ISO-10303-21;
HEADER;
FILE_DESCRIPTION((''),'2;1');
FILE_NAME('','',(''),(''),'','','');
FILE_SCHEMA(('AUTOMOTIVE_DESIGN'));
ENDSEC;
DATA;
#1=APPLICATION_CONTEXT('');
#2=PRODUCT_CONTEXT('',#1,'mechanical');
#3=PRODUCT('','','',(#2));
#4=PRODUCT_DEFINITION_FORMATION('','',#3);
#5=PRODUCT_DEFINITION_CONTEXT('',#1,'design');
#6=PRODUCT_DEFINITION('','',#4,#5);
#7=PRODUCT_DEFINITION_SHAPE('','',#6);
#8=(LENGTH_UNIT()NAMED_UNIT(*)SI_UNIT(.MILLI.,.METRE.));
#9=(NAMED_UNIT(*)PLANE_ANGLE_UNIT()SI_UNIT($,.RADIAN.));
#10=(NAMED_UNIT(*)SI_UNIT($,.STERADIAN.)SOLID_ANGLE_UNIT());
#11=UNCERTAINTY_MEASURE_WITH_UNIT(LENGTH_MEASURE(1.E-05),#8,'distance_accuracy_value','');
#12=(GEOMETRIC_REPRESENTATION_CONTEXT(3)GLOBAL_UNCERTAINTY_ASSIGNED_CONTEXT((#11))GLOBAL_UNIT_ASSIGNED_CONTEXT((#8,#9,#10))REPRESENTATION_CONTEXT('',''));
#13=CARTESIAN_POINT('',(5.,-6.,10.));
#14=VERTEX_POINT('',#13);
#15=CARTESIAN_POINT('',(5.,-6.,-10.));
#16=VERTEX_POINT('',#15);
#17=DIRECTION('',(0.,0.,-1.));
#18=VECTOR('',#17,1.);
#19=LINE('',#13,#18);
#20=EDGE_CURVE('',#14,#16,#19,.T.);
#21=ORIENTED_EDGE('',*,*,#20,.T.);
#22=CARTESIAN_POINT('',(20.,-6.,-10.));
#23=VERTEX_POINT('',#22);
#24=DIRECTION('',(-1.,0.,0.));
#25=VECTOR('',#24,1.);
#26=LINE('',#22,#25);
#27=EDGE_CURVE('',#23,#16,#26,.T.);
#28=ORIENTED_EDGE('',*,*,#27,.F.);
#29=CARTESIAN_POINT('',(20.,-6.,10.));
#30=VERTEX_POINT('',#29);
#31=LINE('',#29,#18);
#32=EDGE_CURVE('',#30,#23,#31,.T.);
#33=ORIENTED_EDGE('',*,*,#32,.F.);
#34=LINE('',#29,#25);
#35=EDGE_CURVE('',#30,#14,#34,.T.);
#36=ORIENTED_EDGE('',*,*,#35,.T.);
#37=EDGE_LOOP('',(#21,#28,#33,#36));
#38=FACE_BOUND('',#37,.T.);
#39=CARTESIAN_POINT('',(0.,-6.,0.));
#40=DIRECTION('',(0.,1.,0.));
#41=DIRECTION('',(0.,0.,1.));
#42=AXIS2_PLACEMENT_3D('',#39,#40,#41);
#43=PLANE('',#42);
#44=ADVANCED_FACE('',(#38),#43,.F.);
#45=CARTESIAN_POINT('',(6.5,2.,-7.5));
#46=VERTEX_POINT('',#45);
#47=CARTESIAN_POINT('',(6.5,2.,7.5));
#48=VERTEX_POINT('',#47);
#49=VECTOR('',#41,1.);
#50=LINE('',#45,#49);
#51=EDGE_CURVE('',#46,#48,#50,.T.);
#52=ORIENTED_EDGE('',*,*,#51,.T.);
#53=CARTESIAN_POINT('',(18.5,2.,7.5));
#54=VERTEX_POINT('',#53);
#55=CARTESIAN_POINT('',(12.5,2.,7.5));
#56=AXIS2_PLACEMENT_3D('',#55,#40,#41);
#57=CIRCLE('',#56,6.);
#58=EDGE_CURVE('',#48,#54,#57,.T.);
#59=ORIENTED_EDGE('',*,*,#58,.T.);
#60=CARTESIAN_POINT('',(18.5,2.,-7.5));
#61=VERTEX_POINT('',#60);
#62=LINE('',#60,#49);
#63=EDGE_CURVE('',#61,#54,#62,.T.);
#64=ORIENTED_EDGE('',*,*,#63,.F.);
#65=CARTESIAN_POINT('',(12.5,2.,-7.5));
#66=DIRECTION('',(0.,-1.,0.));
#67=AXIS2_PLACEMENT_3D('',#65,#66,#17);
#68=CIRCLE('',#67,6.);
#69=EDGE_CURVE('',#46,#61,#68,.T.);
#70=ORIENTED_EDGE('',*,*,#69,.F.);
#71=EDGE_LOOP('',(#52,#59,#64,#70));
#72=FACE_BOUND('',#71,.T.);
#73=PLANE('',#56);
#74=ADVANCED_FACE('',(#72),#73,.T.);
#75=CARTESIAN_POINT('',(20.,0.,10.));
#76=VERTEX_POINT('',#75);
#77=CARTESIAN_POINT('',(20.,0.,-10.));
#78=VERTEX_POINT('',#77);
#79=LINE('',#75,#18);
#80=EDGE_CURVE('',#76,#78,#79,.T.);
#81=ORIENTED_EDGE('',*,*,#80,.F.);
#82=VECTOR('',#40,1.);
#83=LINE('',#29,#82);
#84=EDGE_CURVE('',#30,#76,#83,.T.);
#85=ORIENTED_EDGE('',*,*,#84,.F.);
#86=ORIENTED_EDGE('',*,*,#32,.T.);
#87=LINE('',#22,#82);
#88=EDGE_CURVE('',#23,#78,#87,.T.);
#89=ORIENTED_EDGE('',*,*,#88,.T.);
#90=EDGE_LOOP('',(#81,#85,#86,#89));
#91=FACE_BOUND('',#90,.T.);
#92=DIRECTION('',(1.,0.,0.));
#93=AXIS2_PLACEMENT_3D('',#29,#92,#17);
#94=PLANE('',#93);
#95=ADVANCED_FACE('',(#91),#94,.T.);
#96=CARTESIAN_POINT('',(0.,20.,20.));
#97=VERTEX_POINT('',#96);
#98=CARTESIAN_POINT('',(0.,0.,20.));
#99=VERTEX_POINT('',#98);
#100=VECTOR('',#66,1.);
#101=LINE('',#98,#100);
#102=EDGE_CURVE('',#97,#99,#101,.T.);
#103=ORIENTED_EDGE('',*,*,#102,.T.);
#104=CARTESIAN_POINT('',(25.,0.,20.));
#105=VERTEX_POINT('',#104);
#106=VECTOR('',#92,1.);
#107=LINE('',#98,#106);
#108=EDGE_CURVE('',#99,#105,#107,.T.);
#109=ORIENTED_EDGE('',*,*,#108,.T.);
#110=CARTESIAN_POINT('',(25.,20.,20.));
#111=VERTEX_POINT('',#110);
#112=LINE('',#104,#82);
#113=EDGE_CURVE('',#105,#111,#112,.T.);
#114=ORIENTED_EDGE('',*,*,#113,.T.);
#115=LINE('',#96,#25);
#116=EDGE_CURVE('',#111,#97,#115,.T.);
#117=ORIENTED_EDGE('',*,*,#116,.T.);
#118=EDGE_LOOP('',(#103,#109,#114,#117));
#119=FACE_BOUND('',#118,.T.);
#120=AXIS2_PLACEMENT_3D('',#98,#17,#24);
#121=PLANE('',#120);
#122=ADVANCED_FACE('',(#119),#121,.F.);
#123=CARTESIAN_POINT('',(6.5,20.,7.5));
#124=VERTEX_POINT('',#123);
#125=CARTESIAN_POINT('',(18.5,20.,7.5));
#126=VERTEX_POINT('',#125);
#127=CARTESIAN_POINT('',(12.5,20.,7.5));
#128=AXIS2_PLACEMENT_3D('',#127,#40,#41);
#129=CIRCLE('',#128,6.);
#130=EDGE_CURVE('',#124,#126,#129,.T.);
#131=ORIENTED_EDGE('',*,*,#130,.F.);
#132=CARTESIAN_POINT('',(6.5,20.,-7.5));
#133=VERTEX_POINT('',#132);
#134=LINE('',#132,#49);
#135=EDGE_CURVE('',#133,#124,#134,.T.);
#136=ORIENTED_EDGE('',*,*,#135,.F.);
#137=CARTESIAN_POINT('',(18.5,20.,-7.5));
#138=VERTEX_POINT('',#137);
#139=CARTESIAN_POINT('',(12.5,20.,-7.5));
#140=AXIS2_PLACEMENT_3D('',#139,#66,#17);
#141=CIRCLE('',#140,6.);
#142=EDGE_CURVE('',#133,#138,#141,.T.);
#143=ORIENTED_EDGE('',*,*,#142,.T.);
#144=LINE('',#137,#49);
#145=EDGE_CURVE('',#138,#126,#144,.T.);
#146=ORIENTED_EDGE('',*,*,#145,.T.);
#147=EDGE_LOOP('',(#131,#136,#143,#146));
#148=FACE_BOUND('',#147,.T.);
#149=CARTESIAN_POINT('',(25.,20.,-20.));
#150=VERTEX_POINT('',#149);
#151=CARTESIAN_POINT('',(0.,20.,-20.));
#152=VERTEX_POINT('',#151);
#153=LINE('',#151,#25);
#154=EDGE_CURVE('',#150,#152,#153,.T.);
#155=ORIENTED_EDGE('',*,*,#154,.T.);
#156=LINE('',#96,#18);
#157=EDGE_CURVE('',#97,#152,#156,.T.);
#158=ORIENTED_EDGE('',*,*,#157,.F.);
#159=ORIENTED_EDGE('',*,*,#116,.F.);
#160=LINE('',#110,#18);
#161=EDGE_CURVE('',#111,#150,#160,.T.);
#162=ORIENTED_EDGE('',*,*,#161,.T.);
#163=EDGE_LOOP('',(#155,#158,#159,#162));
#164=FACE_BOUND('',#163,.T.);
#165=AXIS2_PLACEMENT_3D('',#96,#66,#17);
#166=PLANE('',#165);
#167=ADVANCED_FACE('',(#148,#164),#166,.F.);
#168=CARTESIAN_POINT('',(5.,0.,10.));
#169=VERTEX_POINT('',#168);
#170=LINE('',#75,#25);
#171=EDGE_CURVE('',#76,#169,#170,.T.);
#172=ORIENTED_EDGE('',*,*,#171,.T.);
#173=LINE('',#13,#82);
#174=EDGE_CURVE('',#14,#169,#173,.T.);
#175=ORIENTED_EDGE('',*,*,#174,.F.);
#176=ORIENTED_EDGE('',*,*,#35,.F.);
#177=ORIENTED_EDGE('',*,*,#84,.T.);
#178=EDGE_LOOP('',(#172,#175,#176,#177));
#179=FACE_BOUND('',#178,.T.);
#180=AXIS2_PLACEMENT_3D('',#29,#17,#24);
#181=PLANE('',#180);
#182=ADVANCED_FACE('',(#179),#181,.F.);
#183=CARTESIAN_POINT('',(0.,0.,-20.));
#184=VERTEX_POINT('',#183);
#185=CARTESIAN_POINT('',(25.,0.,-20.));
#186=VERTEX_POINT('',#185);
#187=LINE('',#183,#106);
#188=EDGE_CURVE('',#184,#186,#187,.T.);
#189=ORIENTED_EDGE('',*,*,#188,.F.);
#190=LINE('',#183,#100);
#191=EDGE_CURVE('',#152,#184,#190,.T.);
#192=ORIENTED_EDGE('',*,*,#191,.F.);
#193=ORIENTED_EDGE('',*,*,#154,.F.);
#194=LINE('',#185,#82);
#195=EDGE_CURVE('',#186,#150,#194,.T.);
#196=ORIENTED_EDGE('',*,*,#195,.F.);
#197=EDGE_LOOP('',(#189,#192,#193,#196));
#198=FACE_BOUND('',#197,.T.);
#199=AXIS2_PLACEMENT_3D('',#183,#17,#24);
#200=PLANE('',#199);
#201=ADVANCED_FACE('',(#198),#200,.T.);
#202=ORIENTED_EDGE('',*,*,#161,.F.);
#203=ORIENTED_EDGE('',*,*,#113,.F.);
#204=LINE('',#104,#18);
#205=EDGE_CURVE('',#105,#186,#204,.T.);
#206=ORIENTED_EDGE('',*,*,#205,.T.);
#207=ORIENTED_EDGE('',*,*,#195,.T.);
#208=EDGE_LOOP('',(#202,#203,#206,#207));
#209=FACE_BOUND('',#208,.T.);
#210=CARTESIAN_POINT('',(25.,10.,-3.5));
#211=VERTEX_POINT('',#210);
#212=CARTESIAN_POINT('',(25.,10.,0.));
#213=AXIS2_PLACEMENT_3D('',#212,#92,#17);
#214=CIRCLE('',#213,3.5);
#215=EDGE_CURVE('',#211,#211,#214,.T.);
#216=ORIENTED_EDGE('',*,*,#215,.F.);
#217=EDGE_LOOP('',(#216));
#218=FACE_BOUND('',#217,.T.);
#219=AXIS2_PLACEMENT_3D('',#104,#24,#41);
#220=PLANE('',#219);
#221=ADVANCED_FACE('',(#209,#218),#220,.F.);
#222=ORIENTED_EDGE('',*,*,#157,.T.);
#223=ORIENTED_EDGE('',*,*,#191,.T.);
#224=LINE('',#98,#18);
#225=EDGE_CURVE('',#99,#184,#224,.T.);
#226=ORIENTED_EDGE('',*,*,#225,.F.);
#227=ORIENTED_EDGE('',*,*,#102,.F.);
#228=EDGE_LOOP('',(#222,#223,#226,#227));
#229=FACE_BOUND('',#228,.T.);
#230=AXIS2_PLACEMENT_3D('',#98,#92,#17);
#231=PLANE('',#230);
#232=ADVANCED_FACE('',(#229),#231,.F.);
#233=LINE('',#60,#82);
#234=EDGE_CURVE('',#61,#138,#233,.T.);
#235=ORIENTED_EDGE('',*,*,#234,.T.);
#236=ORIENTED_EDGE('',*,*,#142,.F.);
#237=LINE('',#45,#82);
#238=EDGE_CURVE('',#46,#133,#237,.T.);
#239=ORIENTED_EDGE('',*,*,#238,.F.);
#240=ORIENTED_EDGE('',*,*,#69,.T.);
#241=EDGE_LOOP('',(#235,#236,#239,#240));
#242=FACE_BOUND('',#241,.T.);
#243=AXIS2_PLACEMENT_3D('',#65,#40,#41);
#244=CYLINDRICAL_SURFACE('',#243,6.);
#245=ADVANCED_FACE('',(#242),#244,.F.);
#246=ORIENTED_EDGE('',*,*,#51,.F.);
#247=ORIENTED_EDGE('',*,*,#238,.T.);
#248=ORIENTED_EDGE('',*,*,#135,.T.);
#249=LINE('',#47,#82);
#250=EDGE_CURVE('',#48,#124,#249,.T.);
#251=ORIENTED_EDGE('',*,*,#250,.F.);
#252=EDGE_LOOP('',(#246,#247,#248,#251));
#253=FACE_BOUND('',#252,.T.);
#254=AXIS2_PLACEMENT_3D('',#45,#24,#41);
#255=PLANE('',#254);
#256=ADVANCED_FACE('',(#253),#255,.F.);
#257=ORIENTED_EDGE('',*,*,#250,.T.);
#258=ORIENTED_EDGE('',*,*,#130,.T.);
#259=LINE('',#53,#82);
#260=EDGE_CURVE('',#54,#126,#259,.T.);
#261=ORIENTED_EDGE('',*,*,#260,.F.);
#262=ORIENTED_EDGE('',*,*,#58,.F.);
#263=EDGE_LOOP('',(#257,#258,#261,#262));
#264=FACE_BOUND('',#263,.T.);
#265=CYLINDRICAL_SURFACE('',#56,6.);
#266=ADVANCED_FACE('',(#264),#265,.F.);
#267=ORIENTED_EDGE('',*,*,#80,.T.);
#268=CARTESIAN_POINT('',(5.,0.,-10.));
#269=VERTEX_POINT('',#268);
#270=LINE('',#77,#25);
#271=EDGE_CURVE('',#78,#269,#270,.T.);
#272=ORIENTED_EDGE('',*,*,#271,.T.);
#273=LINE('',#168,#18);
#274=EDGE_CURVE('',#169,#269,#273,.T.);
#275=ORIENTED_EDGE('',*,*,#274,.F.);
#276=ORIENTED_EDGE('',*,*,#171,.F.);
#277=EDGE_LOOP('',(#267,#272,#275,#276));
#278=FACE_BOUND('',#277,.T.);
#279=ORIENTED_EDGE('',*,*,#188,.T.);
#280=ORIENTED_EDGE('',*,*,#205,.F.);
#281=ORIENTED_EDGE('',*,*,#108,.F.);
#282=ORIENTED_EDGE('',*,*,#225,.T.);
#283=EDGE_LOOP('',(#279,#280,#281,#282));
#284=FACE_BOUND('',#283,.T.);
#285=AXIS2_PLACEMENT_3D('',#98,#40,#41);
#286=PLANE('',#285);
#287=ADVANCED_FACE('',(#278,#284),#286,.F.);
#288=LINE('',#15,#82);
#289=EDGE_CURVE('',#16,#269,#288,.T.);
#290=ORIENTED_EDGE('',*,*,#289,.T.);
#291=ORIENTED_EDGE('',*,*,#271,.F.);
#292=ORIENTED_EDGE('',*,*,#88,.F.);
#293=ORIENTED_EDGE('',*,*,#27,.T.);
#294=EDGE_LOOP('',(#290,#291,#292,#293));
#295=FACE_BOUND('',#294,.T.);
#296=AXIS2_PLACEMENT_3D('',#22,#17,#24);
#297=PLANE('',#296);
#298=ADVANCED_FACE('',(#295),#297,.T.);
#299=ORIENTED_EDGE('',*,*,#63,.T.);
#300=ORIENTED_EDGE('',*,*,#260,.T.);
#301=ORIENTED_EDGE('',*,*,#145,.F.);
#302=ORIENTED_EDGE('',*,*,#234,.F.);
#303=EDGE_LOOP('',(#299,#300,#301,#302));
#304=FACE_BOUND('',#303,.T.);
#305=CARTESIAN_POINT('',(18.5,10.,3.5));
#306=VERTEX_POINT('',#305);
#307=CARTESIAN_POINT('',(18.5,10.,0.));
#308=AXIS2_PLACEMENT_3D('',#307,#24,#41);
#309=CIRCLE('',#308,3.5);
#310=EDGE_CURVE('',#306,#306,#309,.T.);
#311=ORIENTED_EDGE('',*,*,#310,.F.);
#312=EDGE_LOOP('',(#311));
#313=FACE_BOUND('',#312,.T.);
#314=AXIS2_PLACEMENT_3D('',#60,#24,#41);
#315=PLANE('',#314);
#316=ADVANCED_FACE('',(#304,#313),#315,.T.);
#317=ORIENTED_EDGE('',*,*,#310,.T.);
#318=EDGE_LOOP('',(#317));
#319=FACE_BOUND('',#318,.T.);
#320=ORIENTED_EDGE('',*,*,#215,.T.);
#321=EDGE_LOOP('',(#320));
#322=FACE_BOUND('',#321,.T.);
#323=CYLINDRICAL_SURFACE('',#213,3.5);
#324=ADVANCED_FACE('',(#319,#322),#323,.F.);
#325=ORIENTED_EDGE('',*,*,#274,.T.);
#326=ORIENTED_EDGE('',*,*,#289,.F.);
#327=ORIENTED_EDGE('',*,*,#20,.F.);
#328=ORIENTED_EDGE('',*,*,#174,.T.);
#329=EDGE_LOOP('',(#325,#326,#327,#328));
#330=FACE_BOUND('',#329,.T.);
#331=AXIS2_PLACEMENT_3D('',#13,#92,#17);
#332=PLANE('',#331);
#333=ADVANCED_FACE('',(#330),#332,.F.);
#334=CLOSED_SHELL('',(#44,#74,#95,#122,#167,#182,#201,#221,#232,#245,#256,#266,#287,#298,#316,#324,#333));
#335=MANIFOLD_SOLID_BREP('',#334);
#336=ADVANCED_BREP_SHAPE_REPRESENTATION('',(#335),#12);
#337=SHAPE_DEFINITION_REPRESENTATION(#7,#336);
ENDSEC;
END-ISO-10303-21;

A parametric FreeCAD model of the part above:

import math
import FreeCAD as App
import Part
import Sketcher

V = App.Vector
Q = App.Units.Quantity


def add_polygon(sketch, points):
    """Adds a closed chain of lines whose ends are joined by coincident constraints."""
    first, n = sketch.GeometryCount, len(points)
    for a, b in zip(points, points[1:] + points[:1]):
        sketch.addGeometry(Part.LineSegment(App.Vector(*a, 0), App.Vector(*b, 0)), False)
    for i in range(n):
        sketch.addConstraint(Sketcher.Constraint("Coincident", first + i, 2, first + (i + 1) % n, 1))

doc = App.newDocument("Part")
body = doc.addObject("PartDesign::Body", "Body")

sketch1 = body.newObject("Sketcher::SketchObject", "Sketch")
sketch1.AttachmentSupport = (doc.getObject("XY_Plane"), [""])
sketch1.MapMode = "FlatFace"
add_polygon(sketch1, [(0, 20), (0, 0), (25, 0), (25, 20)])
sketch1.addConstraint(Sketcher.Constraint("Vertical", 0))
sketch1.addConstraint(Sketcher.Constraint("Horizontal", 1))
sketch1.addConstraint(Sketcher.Constraint("Vertical", 2))
sketch1.addConstraint(Sketcher.Constraint("Horizontal", 3))
sketch1.addConstraint(Sketcher.Constraint("Coincident", 0, 2, -1, 1))
sketch1.addConstraint(Sketcher.Constraint("DistanceX", 1, 1, 1, 2, Q("25 mm")))
sketch1.addConstraint(Sketcher.Constraint("DistanceY", 0, 2, 0, 1, Q("20 mm")))
pad1 = body.newObject("PartDesign::Pad", "Pad")
pad1.Profile = sketch1
pad1.Length = 40
pad1.Midplane = True

sketch2 = body.newObject("Sketcher::SketchObject", "Sketch001")
sketch2.AttachmentSupport = (doc.getObject("XZ_Plane"), [""])
sketch2.MapMode = "FlatFace"
sketch2.AttachmentOffset = App.Placement(V(0, 0, -20), App.Rotation())
sketch2.addGeometry(Part.LineSegment(V(6, -8, 0), V(6, 8, 0)), False)
sketch2.addGeometry(Part.ArcOfCircle(Part.Circle(V(12, 8, 0), V(0, 0, 1), 6), math.radians(0), math.radians(180)), False)
sketch2.addGeometry(Part.LineSegment(V(18, 8, 0), V(18, -8, 0)), False)
sketch2.addGeometry(Part.ArcOfCircle(Part.Circle(V(12, -8, 0), V(0, 0, 1), 6), math.radians(180), math.radians(360)), False)
sketch2.addConstraint(Sketcher.Constraint("Tangent", 0, 2, 1, 2))
sketch2.addConstraint(Sketcher.Constraint("Tangent", 1, 1, 2, 1))
sketch2.addConstraint(Sketcher.Constraint("Tangent", 2, 2, 3, 2))
sketch2.addConstraint(Sketcher.Constraint("Tangent", 3, 1, 0, 1))
sketch2.addConstraint(Sketcher.Constraint("Vertical", 0))
sketch2.addConstraint(Sketcher.Constraint("Vertical", 2))
sketch2.addConstraint(Sketcher.Constraint("Radius", 1, Q("6 mm")))
sketch2.addConstraint(Sketcher.Constraint("DistanceY", 0, 1, 0, 2, Q("15 mm")))
sketch2.addConstraint(Sketcher.Constraint("DistanceX", -1, 1, 1, 3, Q("12.5 mm")))
sketch2.addConstraint(Sketcher.Constraint("DistanceY", -1, 1, 1, 3, Q("7.5 mm")))
pocket1 = body.newObject("PartDesign::Pocket", "Pocket")
pocket1.Profile = sketch2
pocket1.Length = 18
pocket1.Reversed = True

sketch3 = body.newObject("Sketcher::SketchObject", "Sketch002")
sketch3.AttachmentSupport = (doc.getObject("YZ_Plane"), [""])
sketch3.MapMode = "FlatFace"
sketch3.AttachmentOffset = App.Placement(V(0, 0, 25), App.Rotation())
sketch3.addGeometry(Part.Circle(V(10, 0, 0), V(0, 0, 1), 3.5), False)
sketch3.addConstraint(Sketcher.Constraint("PointOnObject", 0, 3, -1))
sketch3.addConstraint(Sketcher.Constraint("Diameter", 0, Q("7 mm")))
sketch3.addConstraint(Sketcher.Constraint("DistanceX", -1, 1, 0, 3, Q("10 mm")))
doc.recompute()
hole = body.newObject("PartDesign::Hole", "Hole")
hole.Profile = sketch3
hole.ThreadType = "None"
hole.Diameter = 7
hole.DepthType = "Dimension"
hole.Depth = 6.5
hole.DrillPoint = "Flat"

sketch4 = body.newObject("Sketcher::SketchObject", "Sketch003")
sketch4.AttachmentSupport = (doc.getObject("XZ_Plane"), [""])
sketch4.MapMode = "FlatFace"
add_polygon(sketch4, [(5, -10), (5, 10), (20, 10), (20, -10)])
sketch4.addConstraint(Sketcher.Constraint("Vertical", 0))
sketch4.addConstraint(Sketcher.Constraint("Horizontal", 1))
sketch4.addConstraint(Sketcher.Constraint("Vertical", 2))
sketch4.addConstraint(Sketcher.Constraint("Horizontal", 3))
sketch4.addConstraint(Sketcher.Constraint("DistanceX", 1, 1, 1, 2, Q("15 mm")))
sketch4.addConstraint(Sketcher.Constraint("DistanceY", 0, 1, 0, 2, Q("20 mm")))
sketch4.addConstraint(Sketcher.Constraint("DistanceX", -1, 1, 0, 2, Q("5 mm")))
sketch4.addConstraint(Sketcher.Constraint("DistanceY", -1, 1, 0, 2, Q("10 mm")))
pad2 = body.newObject("PartDesign::Pad", "Pad001")
pad2.Profile = sketch4
pad2.Length = 6

doc.recompute()
